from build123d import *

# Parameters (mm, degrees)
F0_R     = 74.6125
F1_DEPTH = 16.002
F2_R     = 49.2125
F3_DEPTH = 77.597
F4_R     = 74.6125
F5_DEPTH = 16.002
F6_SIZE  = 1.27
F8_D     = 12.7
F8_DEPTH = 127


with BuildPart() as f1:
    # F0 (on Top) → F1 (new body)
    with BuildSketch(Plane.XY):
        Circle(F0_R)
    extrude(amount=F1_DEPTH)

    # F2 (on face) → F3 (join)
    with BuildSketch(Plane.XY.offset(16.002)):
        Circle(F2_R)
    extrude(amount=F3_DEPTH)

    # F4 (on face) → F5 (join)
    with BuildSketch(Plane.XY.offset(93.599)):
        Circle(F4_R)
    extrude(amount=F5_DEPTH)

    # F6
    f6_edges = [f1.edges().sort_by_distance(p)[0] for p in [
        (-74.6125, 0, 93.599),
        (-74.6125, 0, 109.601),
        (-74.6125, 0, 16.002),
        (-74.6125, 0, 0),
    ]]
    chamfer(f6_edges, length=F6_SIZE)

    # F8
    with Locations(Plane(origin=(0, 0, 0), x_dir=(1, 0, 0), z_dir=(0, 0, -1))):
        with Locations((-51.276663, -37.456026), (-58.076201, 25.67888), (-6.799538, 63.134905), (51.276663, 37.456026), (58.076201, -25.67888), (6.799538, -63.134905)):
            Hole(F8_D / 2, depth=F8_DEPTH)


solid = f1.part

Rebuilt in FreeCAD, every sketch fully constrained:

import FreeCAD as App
import Part
import Sketcher

V = App.Vector
Q = App.Units.Quantity


def edges_at(feature, points):
    """Names of the edges that pass closest to the given points."""
    edges = feature.Shape.Edges
    near = lambda p: min(range(len(edges)), key=lambda i: edges[i].distToShape(Part.Vertex(*p))[0])
    return sorted({f"Edge{near(p) + 1}" for p in points})

doc = App.newDocument("Part")
params = doc.addObject("Spreadsheet::Sheet", "Params")
for row, (alias, value) in enumerate([
    ("sketch1_diameter", "5.875 in"),
    ("pad1_length", "0.63 in"),
    ("sketch2_diameter", "3.875 in"),
    ("pad2_length", "3.055 in"),
    ("sketch3_diameter", "5.875 in"),
    ("pad3_length", "0.63 in"),
    ("chamfer_size", "0.05 in"),
    ("sketch4_diameter", "0.5 in"),
    ("hole_diameter", "0.5 in"),
    ("hole_depth", "5 in"),
], start=1):
    params.set(f"A{row}", alias)
    params.set(f"B{row}", "=" + value)
    params.setAlias(f"B{row}", alias)

body = doc.addObject("PartDesign::Body", "Body")

# Sketch on XY plane
sketch1 = body.newObject("Sketcher::SketchObject", "Sketch")
sketch1.AttachmentSupport = (doc.getObject("XY_Plane"), [""])
sketch1.MapMode = "FlatFace"
sketch1.addGeometry(Part.Circle(V(0, 0, 0), V(0, 0, 1), 75), False)
sketch1.addConstraint([
    Sketcher.Constraint("Coincident", 0, 3, -1, 1),
    Sketcher.Constraint("Diameter", 0, Q("5.875 in")),
])
sketch1.setExpression("Constraints[1]", "Params.sketch1_diameter")
pad1 = body.newObject("PartDesign::Pad", "Pad")
pad1.Profile = sketch1
pad1.setExpression("Length", "Params.pad1_length")

# Sketch on XY plane
sketch2 = body.newObject("Sketcher::SketchObject", "Sketch001")
sketch2.AttachmentSupport = (doc.getObject("XY_Plane"), [""])
sketch2.MapMode = "FlatFace"
sketch2.AttachmentOffset = App.Placement(V(0, 0, 0.63 * 25.4), App.Rotation())
sketch2.addGeometry(Part.Circle(V(0, 0, 0), V(0, 0, 1), 49), False)
sketch2.addConstraint([
    Sketcher.Constraint("Coincident", 0, 3, -1, 1),
    Sketcher.Constraint("Diameter", 0, Q("3.875 in")),
])
sketch2.setExpression("Constraints[1]", "Params.sketch2_diameter")
pad2 = body.newObject("PartDesign::Pad", "Pad001")
pad2.Profile = sketch2
pad2.setExpression("Length", "Params.pad2_length")

# Sketch on XY plane
sketch3 = body.newObject("Sketcher::SketchObject", "Sketch002")
sketch3.AttachmentSupport = (doc.getObject("XY_Plane"), [""])
sketch3.MapMode = "FlatFace"
sketch3.AttachmentOffset = App.Placement(V(0, 0, 3.685 * 25.4), App.Rotation())
sketch3.addGeometry(Part.Circle(V(0, 0, 0), V(0, 0, 1), 75), False)
sketch3.addConstraint([
    Sketcher.Constraint("Coincident", 0, 3, -1, 1),
    Sketcher.Constraint("Diameter", 0, Q("5.875 in")),
])
sketch3.setExpression("Constraints[1]", "Params.sketch3_diameter")
pad3 = body.newObject("PartDesign::Pad", "Pad002")
pad3.Profile = sketch3
pad3.setExpression("Length", "Params.pad3_length")
doc.recompute()

chamfer = body.newObject("PartDesign::Chamfer", "Chamfer")
chamfer.Base = (pad3, edges_at(pad3, [
    (-74.612, 0, 93.599),
    (-74.612, 0, 109.601),
    (-74.612, 0, 16.002),
    (-74.612, 0, 0),
]))
chamfer.setExpression("Size", "Params.chamfer_size")

# Sketch on XY plane
sketch4 = body.newObject("Sketcher::SketchObject", "Sketch003")
sketch4.AttachmentSupport = (doc.getObject("XY_Plane"), [""])
sketch4.MapMode = "FlatFace"
sketch4.addGeometry([
    Part.Circle(V(-51, 37, 0), V(0, 0, 1), 6),  # 0
    Part.Circle(V(-58, -26, 0), V(0, 0, 1), 6),  # 1
    Part.Circle(V(-7, -63, 0), V(0, 0, 1), 6),  # 2
    Part.Circle(V(51, -37, 0), V(0, 0, 1), 6),  # 3
    Part.Circle(V(58, 26, 0), V(0, 0, 1), 6),  # 4
    Part.Circle(V(7, 63, 0), V(0, 0, 1), 6),  # 5
], False)
sketch4.addConstraint([
    Sketcher.Constraint("Equal", 0, 1),
    Sketcher.Constraint("Equal", 1, 2),
    Sketcher.Constraint("Equal", 2, 3),
    Sketcher.Constraint("Equal", 3, 4),
    Sketcher.Constraint("Equal", 4, 5),
    Sketcher.Constraint("Symmetric", 0, 3, 3, 3, -1, 1),
    Sketcher.Constraint("Symmetric", 1, 3, 4, 3, -1, 1),
    Sketcher.Constraint("Symmetric", 2, 3, 5, 3, -1, 1),
    Sketcher.Constraint("Diameter", 0, Q("0.5 in")),
    Sketcher.Constraint("DistanceX", 1, 3, -1, 1, Q("58.076201 mm")),
    Sketcher.Constraint("DistanceX", 2, 3, 3, 3, Q("58.076201 mm")),
    Sketcher.Constraint("DistanceY", 1, 3, -1, 1, Q("25.67888 mm")),
    Sketcher.Constraint("DistanceY", 2, 3, 0, 3, Q("100.590931 mm")),
    Sketcher.Constraint("DistanceY", 2, 3, 3, 3, Q("25.678879 mm")),
    Sketcher.Constraint("DistanceX", 2, 3, 4, 3, Q("64.875739 mm")),
])
sketch4.setExpression("Constraints[8]", "Params.sketch4_diameter")
doc.recompute()
hole = body.newObject("PartDesign::Hole", "Hole")
hole.Profile = sketch4
hole.ThreadType = "None"
hole.setExpression("Diameter", "Params.hole_diameter")
hole.DepthType = "Dimension"
hole.setExpression("Depth", "Params.hole_depth")
hole.DrillPoint = "Flat"
hole.Reversed = True

doc.recompute()
